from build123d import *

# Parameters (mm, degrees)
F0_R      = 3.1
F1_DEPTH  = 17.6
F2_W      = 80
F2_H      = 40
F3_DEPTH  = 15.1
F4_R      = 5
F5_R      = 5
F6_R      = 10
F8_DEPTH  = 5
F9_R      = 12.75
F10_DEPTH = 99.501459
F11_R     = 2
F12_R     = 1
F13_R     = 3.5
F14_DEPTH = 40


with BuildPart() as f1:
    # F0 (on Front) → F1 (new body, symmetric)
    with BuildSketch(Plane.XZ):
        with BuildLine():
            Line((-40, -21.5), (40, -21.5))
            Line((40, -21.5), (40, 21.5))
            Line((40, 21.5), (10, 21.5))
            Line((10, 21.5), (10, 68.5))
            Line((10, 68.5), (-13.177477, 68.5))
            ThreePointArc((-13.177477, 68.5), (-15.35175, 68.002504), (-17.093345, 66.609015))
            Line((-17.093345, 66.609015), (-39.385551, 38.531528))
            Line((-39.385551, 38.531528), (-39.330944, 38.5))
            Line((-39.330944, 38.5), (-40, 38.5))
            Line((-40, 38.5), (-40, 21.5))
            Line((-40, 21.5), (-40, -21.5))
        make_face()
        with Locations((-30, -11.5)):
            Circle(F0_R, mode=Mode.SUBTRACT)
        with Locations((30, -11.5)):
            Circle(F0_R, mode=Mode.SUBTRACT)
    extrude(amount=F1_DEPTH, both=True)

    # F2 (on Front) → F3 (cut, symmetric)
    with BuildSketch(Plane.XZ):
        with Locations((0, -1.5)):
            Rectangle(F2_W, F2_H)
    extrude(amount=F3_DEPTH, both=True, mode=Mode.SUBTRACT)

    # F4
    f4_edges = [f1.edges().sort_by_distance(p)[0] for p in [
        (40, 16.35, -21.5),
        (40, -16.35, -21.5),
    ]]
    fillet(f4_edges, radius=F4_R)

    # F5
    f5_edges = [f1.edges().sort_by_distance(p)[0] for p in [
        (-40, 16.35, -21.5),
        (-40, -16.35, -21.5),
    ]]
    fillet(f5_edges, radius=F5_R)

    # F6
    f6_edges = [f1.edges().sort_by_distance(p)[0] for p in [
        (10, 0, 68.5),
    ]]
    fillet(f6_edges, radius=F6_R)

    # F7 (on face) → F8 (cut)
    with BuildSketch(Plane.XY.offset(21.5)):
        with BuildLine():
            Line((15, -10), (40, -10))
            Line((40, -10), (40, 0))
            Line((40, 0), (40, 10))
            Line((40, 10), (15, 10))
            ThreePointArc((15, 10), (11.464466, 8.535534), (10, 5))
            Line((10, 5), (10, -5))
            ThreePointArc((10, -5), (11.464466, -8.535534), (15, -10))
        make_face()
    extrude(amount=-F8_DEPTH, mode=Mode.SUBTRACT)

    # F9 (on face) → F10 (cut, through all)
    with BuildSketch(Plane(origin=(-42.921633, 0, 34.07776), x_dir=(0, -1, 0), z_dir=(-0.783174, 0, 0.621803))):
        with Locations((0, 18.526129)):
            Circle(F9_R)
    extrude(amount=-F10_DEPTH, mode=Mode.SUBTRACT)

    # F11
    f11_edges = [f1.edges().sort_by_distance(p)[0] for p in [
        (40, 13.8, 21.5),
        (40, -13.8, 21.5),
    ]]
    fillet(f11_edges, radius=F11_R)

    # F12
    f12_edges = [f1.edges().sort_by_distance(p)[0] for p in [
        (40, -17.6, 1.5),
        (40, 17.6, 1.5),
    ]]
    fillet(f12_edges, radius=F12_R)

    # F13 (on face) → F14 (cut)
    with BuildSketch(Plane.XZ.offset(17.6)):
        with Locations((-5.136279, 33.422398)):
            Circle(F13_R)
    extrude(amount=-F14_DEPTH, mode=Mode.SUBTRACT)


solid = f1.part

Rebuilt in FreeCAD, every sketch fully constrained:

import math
import FreeCAD as App
import Part
import Sketcher


def edges_at(feature, points):
    """Names of the edges that pass closest to the given points."""
    edges = feature.Shape.Edges
    near = lambda p: min(range(len(edges)), key=lambda i: edges[i].distToShape(Part.Vertex(*p))[0])
    return sorted({f"Edge{near(p) + 1}" for p in points})


def add_polygon(sketch, points):
    """Adds a closed chain of lines whose ends are joined by coincident constraints."""
    first, n = sketch.GeometryCount, len(points)
    for a, b in zip(points, points[1:] + points[:1]):
        sketch.addGeometry(Part.LineSegment(App.Vector(*a, 0), App.Vector(*b, 0)), False)
    for i in range(n):
        sketch.addConstraint(Sketcher.Constraint("Coincident", first + i, 2, first + (i + 1) % n, 1))

doc = App.newDocument("Part")
params = doc.addObject("Spreadsheet::Sheet", "Params")
for row, (alias, value) in enumerate([
    ("sketch1_diameter", "6.2 mm"),
    ("sketch1_diameter2", "6.2 mm"),
    ("sketch1_width", "80 mm"),
    ("sketch1_width2", "30 mm"),
    ("sketch1_height", "43 mm"),
    ("pad1_length", "35.2 mm"),
    ("sketch2_width", "80 mm"),
    ("sketch2_height", "40 mm"),
    ("pocket1_length", "30.2 mm"),
    ("fillet_radius", "5 mm"),
    ("fillet2_radius", "5 mm"),
    ("fillet3_radius", "10 mm"),
    ("sketch3_radius", "5 mm"),
    ("sketch3_width", "25 mm"),
    ("sketch3_height", "20 mm"),
    ("pocket2_length", "5 mm"),
    ("sketch4_diameter", "25.5 mm"),
    ("fillet4_radius", "2 mm"),
    ("fillet5_radius", "1 mm"),
    ("sketch5_diameter", "7 mm"),
    ("pocket4_length", "40 mm"),
], start=1):
    params.set(f"A{row}", alias)
    params.set(f"B{row}", "=" + value)
    params.setAlias(f"B{row}", alias)

body = doc.addObject("PartDesign::Body", "Body")

# Sketch on XZ plane
sketch1 = body.newObject("Sketcher::SketchObject", "Sketch")
sketch1.AttachmentSupport = (doc.getObject("XZ_Plane"), [""])
sketch1.MapMode = "FlatFace"
sketch1.addGeometry(Part.LineSegment(App.Vector(-40, -21.5, 0), App.Vector(40, -21.5, 0)), False)
sketch1.addGeometry(Part.LineSegment(App.Vector(40, -21.5, 0), App.Vector(40, 21.5, 0)), False)
sketch1.addGeometry(Part.LineSegment(App.Vector(40, 21.5, 0), App.Vector(10, 21.5, 0)), False)
sketch1.addGeometry(Part.LineSegment(App.Vector(10, 21.5, 0), App.Vector(10, 68.5, 0)), False)
sketch1.addGeometry(Part.LineSegment(App.Vector(10, 68.5, 0), App.Vector(-13.177477, 68.5, 0)), False)
sketch1.addGeometry(Part.ArcOfCircle(Part.Circle(App.Vector(-13.17748, 63.500007, 0), App.Vector(0, 0, 1), 4.999993), math.radians(89.999969), math.radians(141.552118)), False)
sketch1.addGeometry(Part.LineSegment(App.Vector(-17.093345, 66.609015, 0), App.Vector(-39.385551, 38.531528, 0)), False)
sketch1.addGeometry(Part.LineSegment(App.Vector(-39.385551, 38.531528, 0), App.Vector(-39.330944, 38.5, 0)), False)
sketch1.addGeometry(Part.LineSegment(App.Vector(-39.330944, 38.5, 0), App.Vector(-40, 38.5, 0)), False)
sketch1.addGeometry(Part.LineSegment(App.Vector(-40, 38.5, 0), App.Vector(-40, -21.5, 0)), False)
sketch1.addGeometry(Part.Circle(App.Vector(-30, -11.5, 0), App.Vector(0, 0, 1), 3.1), False)
sketch1.addGeometry(Part.Circle(App.Vector(30, -11.5, 0), App.Vector(0, 0, 1), 3.1), False)
sketch1.addConstraint(Sketcher.Constraint("Coincident", 0, 2, 1, 1))
sketch1.addConstraint(Sketcher.Constraint("Coincident", 1, 2, 2, 1))
sketch1.addConstraint(Sketcher.Constraint("Coincident", 2, 2, 3, 1))
sketch1.addConstraint(Sketcher.Constraint("Coincident", 3, 2, 4, 1))
sketch1.addConstraint(Sketcher.Constraint("Coincident", 4, 2, 5, 1))
sketch1.addConstraint(Sketcher.Constraint("Coincident", 5, 2, 6, 1))
sketch1.addConstraint(Sketcher.Constraint("Coincident", 6, 2, 7, 1))
sketch1.addConstraint(Sketcher.Constraint("Coincident", 7, 2, 8, 1))
sketch1.addConstraint(Sketcher.Constraint("Coincident", 8, 2, 9, 1))
sketch1.addConstraint(Sketcher.Constraint("Coincident", 9, 2, 0, 1))
sketch1.addConstraint(Sketcher.Constraint("Horizontal", 0))
sketch1.addConstraint(Sketcher.Constraint("Vertical", 1))
sketch1.addConstraint(Sketcher.Constraint("Horizontal", 2))
sketch1.addConstraint(Sketcher.Constraint("Vertical", 3))
sketch1.addConstraint(Sketcher.Constraint("Horizontal", 4))
sketch1.addConstraint(Sketcher.Constraint("Horizontal", 8))
sketch1.addConstraint(Sketcher.Constraint("Vertical", 9))
sketch1.addConstraint(Sketcher.Constraint("Diameter", 10, 6.2))
sketch1.addConstraint(Sketcher.Constraint("Diameter", 11, 6.2))
sketch1.addConstraint(Sketcher.Constraint("DistanceX", 0, 1, 0, 2, 80.0))
sketch1.addConstraint(Sketcher.Constraint("DistanceX", 2, 2, 2, 1, 30.0))
sketch1.addConstraint(Sketcher.Constraint("DistanceY", 1, 1, 1, 2, 43.0))
sketch1.addConstraint(Sketcher.Constraint("DistanceY", 3, 1, 3, 2, 47.0))
sketch1.addConstraint(Sketcher.Constraint("DistanceY", 9, 2, 9, 1, 60.0))
sketch1.addConstraint(Sketcher.Constraint("DistanceX", 10, 3, -1, 1, 30.0))
sketch1.addConstraint(Sketcher.Constraint("DistanceX", -1, 1, 11, 3, 30.0))
sketch1.addConstraint(Sketcher.Constraint("DistanceX", -1, 1, 0, 2, 40.0))
sketch1.addConstraint(Sketcher.Constraint("DistanceY", 0, 2, 11, 3, 10.0))
sketch1.addConstraint(Sketcher.Constraint("DistanceY", 0, 2, 10, 3, 10.0))
sketch1.addConstraint(Sketcher.Constraint("DistanceY", 10, 3, -1, 1, 11.5))
sketch1.addConstraint(Sketcher.Constraint("Radius", 5, 4.999993))
sketch1.addConstraint(Sketcher.Constraint("DistanceX", 7, 2, 5, 2, 22.237599))
sketch1.addConstraint(Sketcher.Constraint("Distance", 6, 35.85091))
sketch1.addConstraint(Sketcher.Constraint("DistanceX", 4, 2, 4, 1, 23.177477))
sketch1.addConstraint(Sketcher.Constraint("DistanceX", 8, 2, 8, 1, 0.669056))
sketch1.addConstraint(Sketcher.Constraint("DistanceX", 5, 3, -1, 1, 13.17748))
sketch1.addConstraint(Sketcher.Constraint("DistanceX", 6, 2, -1, 1, 39.385551))
sketch1.setExpression("Constraints[17]", "Params.sketch1_diameter")
sketch1.setExpression("Constraints[18]", "Params.sketch1_diameter2")
sketch1.setExpression("Constraints[19]", "Params.sketch1_width")
sketch1.setExpression("Constraints[20]", "Params.sketch1_width2")
sketch1.setExpression("Constraints[21]", "Params.sketch1_height")
pad1 = body.newObject("PartDesign::Pad", "Pad")
pad1.Profile = sketch1
pad1.setExpression("Length", "Params.pad1_length")
pad1.Midplane = True

# Sketch on XZ plane
sketch2 = body.newObject("Sketcher::SketchObject", "Sketch001")
sketch2.AttachmentSupport = (doc.getObject("XZ_Plane"), [""])
sketch2.MapMode = "FlatFace"
add_polygon(sketch2, [(-40, 18), (-40, -22), (40, -22), (40, 18)])  # lines 0-3
sketch2.addConstraint(Sketcher.Constraint("Vertical", 0))
sketch2.addConstraint(Sketcher.Constraint("Horizontal", 1))
sketch2.addConstraint(Sketcher.Constraint("Vertical", 2))
sketch2.addConstraint(Sketcher.Constraint("Horizontal", 3))
sketch2.addConstraint(Sketcher.Constraint("DistanceX", 1, 1, 1, 2, 80.0))
sketch2.addConstraint(Sketcher.Constraint("DistanceY", 0, 2, 0, 1, 40.0))
sketch2.addConstraint(Sketcher.Constraint("DistanceX", 0, 2, -1, 1, 40.0))
sketch2.addConstraint(Sketcher.Constraint("DistanceY", 0, 2, -1, 1, 21.5))
sketch2.setExpression("Constraints[8]", "Params.sketch2_width")
sketch2.setExpression("Constraints[9]", "Params.sketch2_height")
pocket1 = body.newObject("PartDesign::Pocket", "Pocket")
pocket1.Profile = sketch2
pocket1.setExpression("Length", "Params.pocket1_length")
pocket1.Midplane = True
doc.recompute()

fillet = body.newObject("PartDesign::Fillet", "Fillet")
fillet.Base = (pocket1, edges_at(pocket1, [(40, 16.35, -21.5), (40, -16.35, -21.5)]))
fillet.setExpression("Radius", "Params.fillet_radius")
doc.recompute()

fillet2 = body.newObject("PartDesign::Fillet", "Fillet001")
fillet2.Base = (fillet, edges_at(fillet, [(-40, 16.35, -21.5), (-40, -16.35, -21.5)]))
fillet2.setExpression("Radius", "Params.fillet2_radius")
doc.recompute()

fillet3 = body.newObject("PartDesign::Fillet", "Fillet002")
fillet3.Base = (fillet2, edges_at(fillet2, [(10, 0, 68.5)]))
fillet3.setExpression("Radius", "Params.fillet3_radius")

# Sketch on XY plane
sketch3 = body.newObject("Sketcher::SketchObject", "Sketch002")
sketch3.AttachmentSupport = (doc.getObject("XY_Plane"), [""])
sketch3.MapMode = "FlatFace"
sketch3.AttachmentOffset = App.Placement(App.Vector(0, 0, 21.5), App.Rotation())
sketch3.addGeometry(Part.LineSegment(App.Vector(15, -10, 0), App.Vector(40, -10, 0)), False)
sketch3.addGeometry(Part.LineSegment(App.Vector(40, -10, 0), App.Vector(40, 10, 0)), False)
sketch3.addGeometry(Part.LineSegment(App.Vector(40, 10, 0), App.Vector(15, 10, 0)), False)
sketch3.addGeometry(Part.ArcOfCircle(Part.Circle(App.Vector(15, 5, 0), App.Vector(0, 0, 1), 5), math.radians(90), math.radians(180)), False)
sketch3.addGeometry(Part.LineSegment(App.Vector(10, 5, 0), App.Vector(10, -5, 0)), False)
sketch3.addGeometry(Part.ArcOfCircle(Part.Circle(App.Vector(15, -5, 0), App.Vector(0, 0, 1), 5), math.radians(180), math.radians(270)), False)
sketch3.addConstraint(Sketcher.Constraint("Coincident", 0, 2, 1, 1))
sketch3.addConstraint(Sketcher.Constraint("Coincident", 1, 2, 2, 1))
sketch3.addConstraint(Sketcher.Constraint("Tangent", 2, 2, 3, 1))
sketch3.addConstraint(Sketcher.Constraint("Tangent", 3, 2, 4, 1))
sketch3.addConstraint(Sketcher.Constraint("Tangent", 4, 2, 5, 1))
sketch3.addConstraint(Sketcher.Constraint("Tangent", 5, 2, 0, 1))
sketch3.addConstraint(Sketcher.Constraint("Horizontal", 0))
sketch3.addConstraint(Sketcher.Constraint("Vertical", 1))
sketch3.addConstraint(Sketcher.Constraint("Horizontal", 2))
sketch3.addConstraint(Sketcher.Constraint("Vertical", 4))
sketch3.addConstraint(Sketcher.Constraint("Equal", 3, 5))
sketch3.addConstraint(Sketcher.Constraint("Radius", 3, 5.0))
sketch3.addConstraint(Sketcher.Constraint("DistanceX", 0, 1, 0, 2, 25.0))
sketch3.addConstraint(Sketcher.Constraint("DistanceY", 1, 1, 1, 2, 20.0))
sketch3.addConstraint(Sketcher.Constraint("DistanceX", -1, 1, 3, 3, 15.0))
sketch3.addConstraint(Sketcher.Constraint("DistanceY", -1, 1, 3, 3, 5.0))
sketch3.setExpression("Constraints[11]", "Params.sketch3_radius")
sketch3.setExpression("Constraints[12]", "Params.sketch3_width")
sketch3.setExpression("Constraints[13]", "Params.sketch3_height")
pocket2 = body.newObject("PartDesign::Pocket", "Pocket001")
pocket2.Profile = sketch3
pocket2.setExpression("Length", "Params.pocket2_length")

# Sketch on an angled plane
sketch4 = body.newObject("Sketcher::SketchObject", "Sketch003")
sketch4.Placement = App.Placement(App.Vector(-42.921633, 0, 34.07776), App.Rotation(App.Vector(0, -1, 0), App.Vector(0.621802849, 0, 0.78317381), App.Vector(-0.78317381, 0, 0.621802849), "ZXY"))
sketch4.addGeometry(Part.Circle(App.Vector(0, 19, 0), App.Vector(0, 0, 1), 13), False)
sketch4.addConstraint(Sketcher.Constraint("PointOnObject", 0, 3, -2))
sketch4.addConstraint(Sketcher.Constraint("Diameter", 0, 25.5))
sketch4.addConstraint(Sketcher.Constraint("DistanceY", -1, 1, 0, 3, 18.526129))
sketch4.setExpression("Constraints[1]", "Params.sketch4_diameter")
pocket3 = body.newObject("PartDesign::Pocket", "Pocket002")
pocket3.Profile = sketch4
pocket3.Type = "ThroughAll"
doc.recompute()

fillet4 = body.newObject("PartDesign::Fillet", "Fillet003")
fillet4.Base = (pocket3, edges_at(pocket3, [(40, 13.8, 21.5), (40, -13.8, 21.5)]))
fillet4.setExpression("Radius", "Params.fillet4_radius")
doc.recompute()

fillet5 = body.newObject("PartDesign::Fillet", "Fillet004")
fillet5.Base = (fillet4, edges_at(fillet4, [(40, -17.6, 1.5), (40, 17.6, 1.5)]))
fillet5.setExpression("Radius", "Params.fillet5_radius")

# Sketch on XZ plane
sketch5 = body.newObject("Sketcher::SketchObject", "Sketch004")
sketch5.AttachmentSupport = (doc.getObject("XZ_Plane"), [""])
sketch5.MapMode = "FlatFace"
sketch5.AttachmentOffset = App.Placement(App.Vector(0, 0, 17.6), App.Rotation())
sketch5.addGeometry(Part.Circle(App.Vector(-5.1, 33.4, 0), App.Vector(0, 0, 1), 3.5), False)
sketch5.addConstraint(Sketcher.Constraint("Diameter", 0, 7.0))
sketch5.addConstraint(Sketcher.Constraint("DistanceX", 0, 3, -1, 1, 5.136279))
sketch5.addConstraint(Sketcher.Constraint("DistanceY", -1, 1, 0, 3, 33.422398))
sketch5.setExpression("Constraints[0]", "Params.sketch5_diameter")
pocket4 = body.newObject("PartDesign::Pocket", "Pocket003")
pocket4.Profile = sketch5
pocket4.setExpression("Length", "Params.pocket4_length")

doc.recompute()
